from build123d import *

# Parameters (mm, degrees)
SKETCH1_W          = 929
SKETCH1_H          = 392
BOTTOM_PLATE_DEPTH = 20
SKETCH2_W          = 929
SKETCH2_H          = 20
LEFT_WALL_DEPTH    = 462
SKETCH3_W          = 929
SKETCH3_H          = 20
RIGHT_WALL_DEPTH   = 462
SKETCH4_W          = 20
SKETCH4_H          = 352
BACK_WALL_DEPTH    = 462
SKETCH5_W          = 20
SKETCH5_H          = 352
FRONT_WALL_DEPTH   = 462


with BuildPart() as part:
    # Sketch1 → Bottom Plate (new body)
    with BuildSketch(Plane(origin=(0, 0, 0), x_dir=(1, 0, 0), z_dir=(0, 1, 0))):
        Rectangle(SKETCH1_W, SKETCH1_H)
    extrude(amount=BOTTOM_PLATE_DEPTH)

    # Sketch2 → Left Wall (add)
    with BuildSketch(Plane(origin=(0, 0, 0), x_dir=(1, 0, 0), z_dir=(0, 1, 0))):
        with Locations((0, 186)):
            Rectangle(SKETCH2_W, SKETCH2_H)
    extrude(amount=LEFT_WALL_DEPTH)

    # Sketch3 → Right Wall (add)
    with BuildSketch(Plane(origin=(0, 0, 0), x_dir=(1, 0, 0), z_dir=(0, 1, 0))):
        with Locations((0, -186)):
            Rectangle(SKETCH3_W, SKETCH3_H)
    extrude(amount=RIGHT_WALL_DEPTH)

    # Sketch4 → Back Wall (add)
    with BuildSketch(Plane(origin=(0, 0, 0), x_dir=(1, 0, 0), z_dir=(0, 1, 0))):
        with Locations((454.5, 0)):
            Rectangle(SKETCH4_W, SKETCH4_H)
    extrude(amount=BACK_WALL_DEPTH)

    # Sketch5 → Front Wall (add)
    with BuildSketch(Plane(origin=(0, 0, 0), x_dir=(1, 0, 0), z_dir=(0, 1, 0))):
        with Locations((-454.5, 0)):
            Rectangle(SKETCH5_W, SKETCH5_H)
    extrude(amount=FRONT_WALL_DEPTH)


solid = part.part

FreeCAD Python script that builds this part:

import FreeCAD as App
import Part
import Sketcher
Q = App.Units.Quantity

doc = App.newDocument("Part")
body = doc.addObject("PartDesign::Body", "Body")

# Sketch on XZ plane
sketch1 = doc.addObject("Sketcher::SketchObject", "Sketch")
body.addObject(sketch1)
sketch1.AttachmentSupport = (doc.XZ_Plane, [""])
sketch1.MapMode = "FlatFace"
sketch1.addGeometry([
    Part.LineSegment(App.Vector(-464, -196, 0), App.Vector(-464, 196, 0)),
    Part.LineSegment(App.Vector(-464, 196, 0), App.Vector(464, 196, 0)),
    Part.LineSegment(App.Vector(464, 196, 0), App.Vector(464, -196, 0)),
    Part.LineSegment(App.Vector(464, -196, 0), App.Vector(-464, -196, 0)),
], False)
sketch1.addConstraint([
    Sketcher.Constraint("Coincident", 0, 2, 1, 1),
    Sketcher.Constraint("Coincident", 1, 2, 2, 1),
    Sketcher.Constraint("Coincident", 2, 2, 3, 1),
    Sketcher.Constraint("Coincident", 3, 2, 0, 1),
    Sketcher.Constraint("Vertical", 0),
    Sketcher.Constraint("Horizontal", 1),
    Sketcher.Constraint("Vertical", 2),
    Sketcher.Constraint("Horizontal", 3),
    Sketcher.Constraint("Symmetric", 0, 2, 2, 2, -1, 1),
    Sketcher.Constraint("DistanceX", 1, 1, 1, 2, Q("929 mm")),
    Sketcher.Constraint("DistanceY", 0, 1, 0, 2, Q("392 mm")),
])
pad1 = doc.addObject("PartDesign::Pad", "Pad")
body.addObject(pad1)
pad1.Profile = sketch1
pad1.Length = 20
pad1.Reversed = True

# Sketch on XZ plane
sketch2 = doc.addObject("Sketcher::SketchObject", "Sketch001")
body.addObject(sketch2)
sketch2.AttachmentSupport = (doc.XZ_Plane, [""])
sketch2.MapMode = "FlatFace"
sketch2.addGeometry([
    Part.LineSegment(App.Vector(-464, -196, 0), App.Vector(-464, -176, 0)),
    Part.LineSegment(App.Vector(-464, -176, 0), App.Vector(464, -176, 0)),
    Part.LineSegment(App.Vector(464, -176, 0), App.Vector(464, -196, 0)),
    Part.LineSegment(App.Vector(464, -196, 0), App.Vector(-464, -196, 0)),
], False)
sketch2.addConstraint([
    Sketcher.Constraint("Coincident", 0, 2, 1, 1),
    Sketcher.Constraint("Coincident", 1, 2, 2, 1),
    Sketcher.Constraint("Coincident", 2, 2, 3, 1),
    Sketcher.Constraint("Coincident", 3, 2, 0, 1),
    Sketcher.Constraint("Vertical", 0),
    Sketcher.Constraint("Horizontal", 1),
    Sketcher.Constraint("Vertical", 2),
    Sketcher.Constraint("Horizontal", 3),
    Sketcher.Constraint("DistanceX", 1, 1, 1, 2, Q("929 mm")),
    Sketcher.Constraint("DistanceY", 0, 1, 0, 2, Q("20 mm")),
    Sketcher.Constraint("DistanceY", 0, 2, -1, 1, Q("176 mm")),
    Sketcher.Constraint("DistanceX", 0, 2, -1, 1, Q("464.5 mm")),
])
pad2 = doc.addObject("PartDesign::Pad", "Pad001")
body.addObject(pad2)
pad2.Profile = sketch2
pad2.Length = 462
pad2.Reversed = True

# Sketch on XZ plane
sketch3 = doc.addObject("Sketcher::SketchObject", "Sketch002")
body.addObject(sketch3)
sketch3.AttachmentSupport = (doc.XZ_Plane, [""])
sketch3.MapMode = "FlatFace"
sketch3.addGeometry([
    Part.LineSegment(App.Vector(-464, 176, 0), App.Vector(-464, 196, 0)),
    Part.LineSegment(App.Vector(-464, 196, 0), App.Vector(464, 196, 0)),
    Part.LineSegment(App.Vector(464, 196, 0), App.Vector(464, 176, 0)),
    Part.LineSegment(App.Vector(464, 176, 0), App.Vector(-464, 176, 0)),
], False)
sketch3.addConstraint([
    Sketcher.Constraint("Coincident", 0, 2, 1, 1),
    Sketcher.Constraint("Coincident", 1, 2, 2, 1),
    Sketcher.Constraint("Coincident", 2, 2, 3, 1),
    Sketcher.Constraint("Coincident", 3, 2, 0, 1),
    Sketcher.Constraint("Vertical", 0),
    Sketcher.Constraint("Horizontal", 1),
    Sketcher.Constraint("Vertical", 2),
    Sketcher.Constraint("Horizontal", 3),
    Sketcher.Constraint("DistanceX", 1, 1, 1, 2, Q("929 mm")),
    Sketcher.Constraint("DistanceY", 0, 1, 0, 2, Q("20 mm")),
    Sketcher.Constraint("DistanceY", -1, 1, 0, 2, Q("196 mm")),
    Sketcher.Constraint("DistanceX", 0, 2, -1, 1, Q("464.5 mm")),
])
pad3 = doc.addObject("PartDesign::Pad", "Pad002")
body.addObject(pad3)
pad3.Profile = sketch3
pad3.Length = 462
pad3.Reversed = True

# Sketch on XZ plane
sketch4 = doc.addObject("Sketcher::SketchObject", "Sketch003")
body.addObject(sketch4)
sketch4.AttachmentSupport = (doc.XZ_Plane, [""])
sketch4.MapMode = "FlatFace"
sketch4.addGeometry([
    Part.LineSegment(App.Vector(444, -176, 0), App.Vector(444, 176, 0)),
    Part.LineSegment(App.Vector(444, 176, 0), App.Vector(464, 176, 0)),
    Part.LineSegment(App.Vector(464, 176, 0), App.Vector(464, -176, 0)),
    Part.LineSegment(App.Vector(464, -176, 0), App.Vector(444, -176, 0)),
], False)
sketch4.addConstraint([
    Sketcher.Constraint("Coincident", 0, 2, 1, 1),
    Sketcher.Constraint("Coincident", 1, 2, 2, 1),
    Sketcher.Constraint("Coincident", 2, 2, 3, 1),
    Sketcher.Constraint("Coincident", 3, 2, 0, 1),
    Sketcher.Constraint("Vertical", 0),
    Sketcher.Constraint("Horizontal", 1),
    Sketcher.Constraint("Vertical", 2),
    Sketcher.Constraint("Horizontal", 3),
    Sketcher.Constraint("DistanceX", 1, 1, 1, 2, Q("20 mm")),
    Sketcher.Constraint("DistanceY", 0, 1, 0, 2, Q("352 mm")),
    Sketcher.Constraint("DistanceY", -1, 1, 0, 2, Q("176 mm")),
    Sketcher.Constraint("DistanceX", -1, 1, 0, 2, Q("444.5 mm")),
])
pad4 = doc.addObject("PartDesign::Pad", "Pad003")
body.addObject(pad4)
pad4.Profile = sketch4
pad4.Length = 462
pad4.Reversed = True

# Sketch on XZ plane
sketch5 = doc.addObject("Sketcher::SketchObject", "Sketch004")
body.addObject(sketch5)
sketch5.AttachmentSupport = (doc.XZ_Plane, [""])
sketch5.MapMode = "FlatFace"
sketch5.addGeometry([
    Part.LineSegment(App.Vector(-464, -176, 0), App.Vector(-464, 176, 0)),
    Part.LineSegment(App.Vector(-464, 176, 0), App.Vector(-444, 176, 0)),
    Part.LineSegment(App.Vector(-444, 176, 0), App.Vector(-444, -176, 0)),
    Part.LineSegment(App.Vector(-444, -176, 0), App.Vector(-464, -176, 0)),
], False)
sketch5.addConstraint([
    Sketcher.Constraint("Coincident", 0, 2, 1, 1),
    Sketcher.Constraint("Coincident", 1, 2, 2, 1),
    Sketcher.Constraint("Coincident", 2, 2, 3, 1),
    Sketcher.Constraint("Coincident", 3, 2, 0, 1),
    Sketcher.Constraint("Vertical", 0),
    Sketcher.Constraint("Horizontal", 1),
    Sketcher.Constraint("Vertical", 2),
    Sketcher.Constraint("Horizontal", 3),
    Sketcher.Constraint("DistanceX", 1, 1, 1, 2, Q("20 mm")),
    Sketcher.Constraint("DistanceY", 0, 1, 0, 2, Q("352 mm")),
    Sketcher.Constraint("DistanceY", -1, 1, 0, 2, Q("176 mm")),
    Sketcher.Constraint("DistanceX", 0, 2, -1, 1, Q("464.5 mm")),
])
pad5 = doc.addObject("PartDesign::Pad", "Pad004")
body.addObject(pad5)
pad5.Profile = sketch5
pad5.Length = 462
pad5.Reversed = True

doc.recompute()
